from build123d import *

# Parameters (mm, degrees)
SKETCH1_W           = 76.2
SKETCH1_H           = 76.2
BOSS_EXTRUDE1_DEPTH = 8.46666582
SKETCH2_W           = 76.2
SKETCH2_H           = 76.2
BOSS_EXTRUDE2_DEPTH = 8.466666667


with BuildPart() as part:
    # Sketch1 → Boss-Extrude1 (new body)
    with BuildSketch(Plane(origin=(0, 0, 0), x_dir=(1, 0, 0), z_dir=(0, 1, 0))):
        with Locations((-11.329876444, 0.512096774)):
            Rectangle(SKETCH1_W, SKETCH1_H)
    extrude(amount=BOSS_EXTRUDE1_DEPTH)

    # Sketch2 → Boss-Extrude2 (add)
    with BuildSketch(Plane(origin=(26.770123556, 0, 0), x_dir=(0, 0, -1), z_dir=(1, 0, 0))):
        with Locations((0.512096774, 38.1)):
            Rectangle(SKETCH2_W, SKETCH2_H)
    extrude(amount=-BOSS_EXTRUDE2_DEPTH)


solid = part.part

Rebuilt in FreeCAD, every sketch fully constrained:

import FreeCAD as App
import Part
import Sketcher
from FreeCAD import Vector
Q = App.Units.Quantity


def add_polygon(sketch, points):
    """Adds a closed chain of lines whose ends are joined by coincident constraints."""
    first, n = sketch.GeometryCount, len(points)
    for a, b in zip(points, points[1:] + points[:1]):
        sketch.addGeometry(Part.LineSegment(App.Vector(*a, 0), App.Vector(*b, 0)), False)
    for i in range(n):
        sketch.addConstraint(Sketcher.Constraint("Coincident", first + i, 2, first + (i + 1) % n, 1))

doc = App.newDocument("Part")
body = doc.addObject("PartDesign::Body", "Body")

# Sketch on XZ plane
sketch1 = doc.addObject("Sketcher::SketchObject", "Sketch")
body.addObject(sketch1)
sketch1.AttachmentSupport = (doc.XZ_Plane, [""])
sketch1.MapMode = "FlatFace"
add_polygon(sketch1, [(-49, -39), (-49, 38), (27, 38), (27, -39)])  # lines 0-3
sketch1.addConstraint([
    Sketcher.Constraint("Vertical", 0),
    Sketcher.Constraint("Horizontal", 1),
    Sketcher.Constraint("Vertical", 2),
    Sketcher.Constraint("Horizontal", 3),
    Sketcher.Constraint("Equal", 3, 0),
    Sketcher.Constraint("DistanceX", 1, 1, 1, 2, Q("3 in")),
    Sketcher.Constraint("DistanceX", 0, 2, -1, 1, Q("49.429876 mm")),
    Sketcher.Constraint("DistanceY", -1, 1, 0, 2, Q("37.587903 mm")),
])
pad1 = doc.addObject("PartDesign::Pad", "Pad")
body.addObject(pad1)
pad1.Profile = sketch1
pad1.Length = 8.466666
pad1.Reversed = True

# Sketch on YZ plane
sketch2 = doc.addObject("Sketcher::SketchObject", "Sketch001")
body.addObject(sketch2)
sketch2.AttachmentSupport = (doc.YZ_Plane, [""])
sketch2.MapMode = "FlatFace"
sketch2.AttachmentOffset = App.Placement(Vector(0, 0, 26.770124), App.Rotation())
add_polygon(sketch2, [(76, 38), (0, 38), (0, -39), (76, -39)])  # lines 0-3
sketch2.addConstraint([
    Sketcher.Constraint("Horizontal", 0),
    Sketcher.Constraint("Vertical", 1),
    Sketcher.Constraint("Horizontal", 2),
    Sketcher.Constraint("Vertical", 3),
    Sketcher.Constraint("PointOnObject", 0, 2, -2),
    Sketcher.Constraint("Equal", 2, 1),
    Sketcher.Constraint("DistanceX", 0, 2, 0, 1, Q("3 in")),
    Sketcher.Constraint("DistanceY", -1, 1, 0, 2, Q("37.587903 mm")),
])
pad2 = doc.addObject("PartDesign::Pad", "Pad001")
body.addObject(pad2)
pad2.Profile = sketch2
pad2.Length = 8.466667
pad2.Reversed = True

doc.recompute()
